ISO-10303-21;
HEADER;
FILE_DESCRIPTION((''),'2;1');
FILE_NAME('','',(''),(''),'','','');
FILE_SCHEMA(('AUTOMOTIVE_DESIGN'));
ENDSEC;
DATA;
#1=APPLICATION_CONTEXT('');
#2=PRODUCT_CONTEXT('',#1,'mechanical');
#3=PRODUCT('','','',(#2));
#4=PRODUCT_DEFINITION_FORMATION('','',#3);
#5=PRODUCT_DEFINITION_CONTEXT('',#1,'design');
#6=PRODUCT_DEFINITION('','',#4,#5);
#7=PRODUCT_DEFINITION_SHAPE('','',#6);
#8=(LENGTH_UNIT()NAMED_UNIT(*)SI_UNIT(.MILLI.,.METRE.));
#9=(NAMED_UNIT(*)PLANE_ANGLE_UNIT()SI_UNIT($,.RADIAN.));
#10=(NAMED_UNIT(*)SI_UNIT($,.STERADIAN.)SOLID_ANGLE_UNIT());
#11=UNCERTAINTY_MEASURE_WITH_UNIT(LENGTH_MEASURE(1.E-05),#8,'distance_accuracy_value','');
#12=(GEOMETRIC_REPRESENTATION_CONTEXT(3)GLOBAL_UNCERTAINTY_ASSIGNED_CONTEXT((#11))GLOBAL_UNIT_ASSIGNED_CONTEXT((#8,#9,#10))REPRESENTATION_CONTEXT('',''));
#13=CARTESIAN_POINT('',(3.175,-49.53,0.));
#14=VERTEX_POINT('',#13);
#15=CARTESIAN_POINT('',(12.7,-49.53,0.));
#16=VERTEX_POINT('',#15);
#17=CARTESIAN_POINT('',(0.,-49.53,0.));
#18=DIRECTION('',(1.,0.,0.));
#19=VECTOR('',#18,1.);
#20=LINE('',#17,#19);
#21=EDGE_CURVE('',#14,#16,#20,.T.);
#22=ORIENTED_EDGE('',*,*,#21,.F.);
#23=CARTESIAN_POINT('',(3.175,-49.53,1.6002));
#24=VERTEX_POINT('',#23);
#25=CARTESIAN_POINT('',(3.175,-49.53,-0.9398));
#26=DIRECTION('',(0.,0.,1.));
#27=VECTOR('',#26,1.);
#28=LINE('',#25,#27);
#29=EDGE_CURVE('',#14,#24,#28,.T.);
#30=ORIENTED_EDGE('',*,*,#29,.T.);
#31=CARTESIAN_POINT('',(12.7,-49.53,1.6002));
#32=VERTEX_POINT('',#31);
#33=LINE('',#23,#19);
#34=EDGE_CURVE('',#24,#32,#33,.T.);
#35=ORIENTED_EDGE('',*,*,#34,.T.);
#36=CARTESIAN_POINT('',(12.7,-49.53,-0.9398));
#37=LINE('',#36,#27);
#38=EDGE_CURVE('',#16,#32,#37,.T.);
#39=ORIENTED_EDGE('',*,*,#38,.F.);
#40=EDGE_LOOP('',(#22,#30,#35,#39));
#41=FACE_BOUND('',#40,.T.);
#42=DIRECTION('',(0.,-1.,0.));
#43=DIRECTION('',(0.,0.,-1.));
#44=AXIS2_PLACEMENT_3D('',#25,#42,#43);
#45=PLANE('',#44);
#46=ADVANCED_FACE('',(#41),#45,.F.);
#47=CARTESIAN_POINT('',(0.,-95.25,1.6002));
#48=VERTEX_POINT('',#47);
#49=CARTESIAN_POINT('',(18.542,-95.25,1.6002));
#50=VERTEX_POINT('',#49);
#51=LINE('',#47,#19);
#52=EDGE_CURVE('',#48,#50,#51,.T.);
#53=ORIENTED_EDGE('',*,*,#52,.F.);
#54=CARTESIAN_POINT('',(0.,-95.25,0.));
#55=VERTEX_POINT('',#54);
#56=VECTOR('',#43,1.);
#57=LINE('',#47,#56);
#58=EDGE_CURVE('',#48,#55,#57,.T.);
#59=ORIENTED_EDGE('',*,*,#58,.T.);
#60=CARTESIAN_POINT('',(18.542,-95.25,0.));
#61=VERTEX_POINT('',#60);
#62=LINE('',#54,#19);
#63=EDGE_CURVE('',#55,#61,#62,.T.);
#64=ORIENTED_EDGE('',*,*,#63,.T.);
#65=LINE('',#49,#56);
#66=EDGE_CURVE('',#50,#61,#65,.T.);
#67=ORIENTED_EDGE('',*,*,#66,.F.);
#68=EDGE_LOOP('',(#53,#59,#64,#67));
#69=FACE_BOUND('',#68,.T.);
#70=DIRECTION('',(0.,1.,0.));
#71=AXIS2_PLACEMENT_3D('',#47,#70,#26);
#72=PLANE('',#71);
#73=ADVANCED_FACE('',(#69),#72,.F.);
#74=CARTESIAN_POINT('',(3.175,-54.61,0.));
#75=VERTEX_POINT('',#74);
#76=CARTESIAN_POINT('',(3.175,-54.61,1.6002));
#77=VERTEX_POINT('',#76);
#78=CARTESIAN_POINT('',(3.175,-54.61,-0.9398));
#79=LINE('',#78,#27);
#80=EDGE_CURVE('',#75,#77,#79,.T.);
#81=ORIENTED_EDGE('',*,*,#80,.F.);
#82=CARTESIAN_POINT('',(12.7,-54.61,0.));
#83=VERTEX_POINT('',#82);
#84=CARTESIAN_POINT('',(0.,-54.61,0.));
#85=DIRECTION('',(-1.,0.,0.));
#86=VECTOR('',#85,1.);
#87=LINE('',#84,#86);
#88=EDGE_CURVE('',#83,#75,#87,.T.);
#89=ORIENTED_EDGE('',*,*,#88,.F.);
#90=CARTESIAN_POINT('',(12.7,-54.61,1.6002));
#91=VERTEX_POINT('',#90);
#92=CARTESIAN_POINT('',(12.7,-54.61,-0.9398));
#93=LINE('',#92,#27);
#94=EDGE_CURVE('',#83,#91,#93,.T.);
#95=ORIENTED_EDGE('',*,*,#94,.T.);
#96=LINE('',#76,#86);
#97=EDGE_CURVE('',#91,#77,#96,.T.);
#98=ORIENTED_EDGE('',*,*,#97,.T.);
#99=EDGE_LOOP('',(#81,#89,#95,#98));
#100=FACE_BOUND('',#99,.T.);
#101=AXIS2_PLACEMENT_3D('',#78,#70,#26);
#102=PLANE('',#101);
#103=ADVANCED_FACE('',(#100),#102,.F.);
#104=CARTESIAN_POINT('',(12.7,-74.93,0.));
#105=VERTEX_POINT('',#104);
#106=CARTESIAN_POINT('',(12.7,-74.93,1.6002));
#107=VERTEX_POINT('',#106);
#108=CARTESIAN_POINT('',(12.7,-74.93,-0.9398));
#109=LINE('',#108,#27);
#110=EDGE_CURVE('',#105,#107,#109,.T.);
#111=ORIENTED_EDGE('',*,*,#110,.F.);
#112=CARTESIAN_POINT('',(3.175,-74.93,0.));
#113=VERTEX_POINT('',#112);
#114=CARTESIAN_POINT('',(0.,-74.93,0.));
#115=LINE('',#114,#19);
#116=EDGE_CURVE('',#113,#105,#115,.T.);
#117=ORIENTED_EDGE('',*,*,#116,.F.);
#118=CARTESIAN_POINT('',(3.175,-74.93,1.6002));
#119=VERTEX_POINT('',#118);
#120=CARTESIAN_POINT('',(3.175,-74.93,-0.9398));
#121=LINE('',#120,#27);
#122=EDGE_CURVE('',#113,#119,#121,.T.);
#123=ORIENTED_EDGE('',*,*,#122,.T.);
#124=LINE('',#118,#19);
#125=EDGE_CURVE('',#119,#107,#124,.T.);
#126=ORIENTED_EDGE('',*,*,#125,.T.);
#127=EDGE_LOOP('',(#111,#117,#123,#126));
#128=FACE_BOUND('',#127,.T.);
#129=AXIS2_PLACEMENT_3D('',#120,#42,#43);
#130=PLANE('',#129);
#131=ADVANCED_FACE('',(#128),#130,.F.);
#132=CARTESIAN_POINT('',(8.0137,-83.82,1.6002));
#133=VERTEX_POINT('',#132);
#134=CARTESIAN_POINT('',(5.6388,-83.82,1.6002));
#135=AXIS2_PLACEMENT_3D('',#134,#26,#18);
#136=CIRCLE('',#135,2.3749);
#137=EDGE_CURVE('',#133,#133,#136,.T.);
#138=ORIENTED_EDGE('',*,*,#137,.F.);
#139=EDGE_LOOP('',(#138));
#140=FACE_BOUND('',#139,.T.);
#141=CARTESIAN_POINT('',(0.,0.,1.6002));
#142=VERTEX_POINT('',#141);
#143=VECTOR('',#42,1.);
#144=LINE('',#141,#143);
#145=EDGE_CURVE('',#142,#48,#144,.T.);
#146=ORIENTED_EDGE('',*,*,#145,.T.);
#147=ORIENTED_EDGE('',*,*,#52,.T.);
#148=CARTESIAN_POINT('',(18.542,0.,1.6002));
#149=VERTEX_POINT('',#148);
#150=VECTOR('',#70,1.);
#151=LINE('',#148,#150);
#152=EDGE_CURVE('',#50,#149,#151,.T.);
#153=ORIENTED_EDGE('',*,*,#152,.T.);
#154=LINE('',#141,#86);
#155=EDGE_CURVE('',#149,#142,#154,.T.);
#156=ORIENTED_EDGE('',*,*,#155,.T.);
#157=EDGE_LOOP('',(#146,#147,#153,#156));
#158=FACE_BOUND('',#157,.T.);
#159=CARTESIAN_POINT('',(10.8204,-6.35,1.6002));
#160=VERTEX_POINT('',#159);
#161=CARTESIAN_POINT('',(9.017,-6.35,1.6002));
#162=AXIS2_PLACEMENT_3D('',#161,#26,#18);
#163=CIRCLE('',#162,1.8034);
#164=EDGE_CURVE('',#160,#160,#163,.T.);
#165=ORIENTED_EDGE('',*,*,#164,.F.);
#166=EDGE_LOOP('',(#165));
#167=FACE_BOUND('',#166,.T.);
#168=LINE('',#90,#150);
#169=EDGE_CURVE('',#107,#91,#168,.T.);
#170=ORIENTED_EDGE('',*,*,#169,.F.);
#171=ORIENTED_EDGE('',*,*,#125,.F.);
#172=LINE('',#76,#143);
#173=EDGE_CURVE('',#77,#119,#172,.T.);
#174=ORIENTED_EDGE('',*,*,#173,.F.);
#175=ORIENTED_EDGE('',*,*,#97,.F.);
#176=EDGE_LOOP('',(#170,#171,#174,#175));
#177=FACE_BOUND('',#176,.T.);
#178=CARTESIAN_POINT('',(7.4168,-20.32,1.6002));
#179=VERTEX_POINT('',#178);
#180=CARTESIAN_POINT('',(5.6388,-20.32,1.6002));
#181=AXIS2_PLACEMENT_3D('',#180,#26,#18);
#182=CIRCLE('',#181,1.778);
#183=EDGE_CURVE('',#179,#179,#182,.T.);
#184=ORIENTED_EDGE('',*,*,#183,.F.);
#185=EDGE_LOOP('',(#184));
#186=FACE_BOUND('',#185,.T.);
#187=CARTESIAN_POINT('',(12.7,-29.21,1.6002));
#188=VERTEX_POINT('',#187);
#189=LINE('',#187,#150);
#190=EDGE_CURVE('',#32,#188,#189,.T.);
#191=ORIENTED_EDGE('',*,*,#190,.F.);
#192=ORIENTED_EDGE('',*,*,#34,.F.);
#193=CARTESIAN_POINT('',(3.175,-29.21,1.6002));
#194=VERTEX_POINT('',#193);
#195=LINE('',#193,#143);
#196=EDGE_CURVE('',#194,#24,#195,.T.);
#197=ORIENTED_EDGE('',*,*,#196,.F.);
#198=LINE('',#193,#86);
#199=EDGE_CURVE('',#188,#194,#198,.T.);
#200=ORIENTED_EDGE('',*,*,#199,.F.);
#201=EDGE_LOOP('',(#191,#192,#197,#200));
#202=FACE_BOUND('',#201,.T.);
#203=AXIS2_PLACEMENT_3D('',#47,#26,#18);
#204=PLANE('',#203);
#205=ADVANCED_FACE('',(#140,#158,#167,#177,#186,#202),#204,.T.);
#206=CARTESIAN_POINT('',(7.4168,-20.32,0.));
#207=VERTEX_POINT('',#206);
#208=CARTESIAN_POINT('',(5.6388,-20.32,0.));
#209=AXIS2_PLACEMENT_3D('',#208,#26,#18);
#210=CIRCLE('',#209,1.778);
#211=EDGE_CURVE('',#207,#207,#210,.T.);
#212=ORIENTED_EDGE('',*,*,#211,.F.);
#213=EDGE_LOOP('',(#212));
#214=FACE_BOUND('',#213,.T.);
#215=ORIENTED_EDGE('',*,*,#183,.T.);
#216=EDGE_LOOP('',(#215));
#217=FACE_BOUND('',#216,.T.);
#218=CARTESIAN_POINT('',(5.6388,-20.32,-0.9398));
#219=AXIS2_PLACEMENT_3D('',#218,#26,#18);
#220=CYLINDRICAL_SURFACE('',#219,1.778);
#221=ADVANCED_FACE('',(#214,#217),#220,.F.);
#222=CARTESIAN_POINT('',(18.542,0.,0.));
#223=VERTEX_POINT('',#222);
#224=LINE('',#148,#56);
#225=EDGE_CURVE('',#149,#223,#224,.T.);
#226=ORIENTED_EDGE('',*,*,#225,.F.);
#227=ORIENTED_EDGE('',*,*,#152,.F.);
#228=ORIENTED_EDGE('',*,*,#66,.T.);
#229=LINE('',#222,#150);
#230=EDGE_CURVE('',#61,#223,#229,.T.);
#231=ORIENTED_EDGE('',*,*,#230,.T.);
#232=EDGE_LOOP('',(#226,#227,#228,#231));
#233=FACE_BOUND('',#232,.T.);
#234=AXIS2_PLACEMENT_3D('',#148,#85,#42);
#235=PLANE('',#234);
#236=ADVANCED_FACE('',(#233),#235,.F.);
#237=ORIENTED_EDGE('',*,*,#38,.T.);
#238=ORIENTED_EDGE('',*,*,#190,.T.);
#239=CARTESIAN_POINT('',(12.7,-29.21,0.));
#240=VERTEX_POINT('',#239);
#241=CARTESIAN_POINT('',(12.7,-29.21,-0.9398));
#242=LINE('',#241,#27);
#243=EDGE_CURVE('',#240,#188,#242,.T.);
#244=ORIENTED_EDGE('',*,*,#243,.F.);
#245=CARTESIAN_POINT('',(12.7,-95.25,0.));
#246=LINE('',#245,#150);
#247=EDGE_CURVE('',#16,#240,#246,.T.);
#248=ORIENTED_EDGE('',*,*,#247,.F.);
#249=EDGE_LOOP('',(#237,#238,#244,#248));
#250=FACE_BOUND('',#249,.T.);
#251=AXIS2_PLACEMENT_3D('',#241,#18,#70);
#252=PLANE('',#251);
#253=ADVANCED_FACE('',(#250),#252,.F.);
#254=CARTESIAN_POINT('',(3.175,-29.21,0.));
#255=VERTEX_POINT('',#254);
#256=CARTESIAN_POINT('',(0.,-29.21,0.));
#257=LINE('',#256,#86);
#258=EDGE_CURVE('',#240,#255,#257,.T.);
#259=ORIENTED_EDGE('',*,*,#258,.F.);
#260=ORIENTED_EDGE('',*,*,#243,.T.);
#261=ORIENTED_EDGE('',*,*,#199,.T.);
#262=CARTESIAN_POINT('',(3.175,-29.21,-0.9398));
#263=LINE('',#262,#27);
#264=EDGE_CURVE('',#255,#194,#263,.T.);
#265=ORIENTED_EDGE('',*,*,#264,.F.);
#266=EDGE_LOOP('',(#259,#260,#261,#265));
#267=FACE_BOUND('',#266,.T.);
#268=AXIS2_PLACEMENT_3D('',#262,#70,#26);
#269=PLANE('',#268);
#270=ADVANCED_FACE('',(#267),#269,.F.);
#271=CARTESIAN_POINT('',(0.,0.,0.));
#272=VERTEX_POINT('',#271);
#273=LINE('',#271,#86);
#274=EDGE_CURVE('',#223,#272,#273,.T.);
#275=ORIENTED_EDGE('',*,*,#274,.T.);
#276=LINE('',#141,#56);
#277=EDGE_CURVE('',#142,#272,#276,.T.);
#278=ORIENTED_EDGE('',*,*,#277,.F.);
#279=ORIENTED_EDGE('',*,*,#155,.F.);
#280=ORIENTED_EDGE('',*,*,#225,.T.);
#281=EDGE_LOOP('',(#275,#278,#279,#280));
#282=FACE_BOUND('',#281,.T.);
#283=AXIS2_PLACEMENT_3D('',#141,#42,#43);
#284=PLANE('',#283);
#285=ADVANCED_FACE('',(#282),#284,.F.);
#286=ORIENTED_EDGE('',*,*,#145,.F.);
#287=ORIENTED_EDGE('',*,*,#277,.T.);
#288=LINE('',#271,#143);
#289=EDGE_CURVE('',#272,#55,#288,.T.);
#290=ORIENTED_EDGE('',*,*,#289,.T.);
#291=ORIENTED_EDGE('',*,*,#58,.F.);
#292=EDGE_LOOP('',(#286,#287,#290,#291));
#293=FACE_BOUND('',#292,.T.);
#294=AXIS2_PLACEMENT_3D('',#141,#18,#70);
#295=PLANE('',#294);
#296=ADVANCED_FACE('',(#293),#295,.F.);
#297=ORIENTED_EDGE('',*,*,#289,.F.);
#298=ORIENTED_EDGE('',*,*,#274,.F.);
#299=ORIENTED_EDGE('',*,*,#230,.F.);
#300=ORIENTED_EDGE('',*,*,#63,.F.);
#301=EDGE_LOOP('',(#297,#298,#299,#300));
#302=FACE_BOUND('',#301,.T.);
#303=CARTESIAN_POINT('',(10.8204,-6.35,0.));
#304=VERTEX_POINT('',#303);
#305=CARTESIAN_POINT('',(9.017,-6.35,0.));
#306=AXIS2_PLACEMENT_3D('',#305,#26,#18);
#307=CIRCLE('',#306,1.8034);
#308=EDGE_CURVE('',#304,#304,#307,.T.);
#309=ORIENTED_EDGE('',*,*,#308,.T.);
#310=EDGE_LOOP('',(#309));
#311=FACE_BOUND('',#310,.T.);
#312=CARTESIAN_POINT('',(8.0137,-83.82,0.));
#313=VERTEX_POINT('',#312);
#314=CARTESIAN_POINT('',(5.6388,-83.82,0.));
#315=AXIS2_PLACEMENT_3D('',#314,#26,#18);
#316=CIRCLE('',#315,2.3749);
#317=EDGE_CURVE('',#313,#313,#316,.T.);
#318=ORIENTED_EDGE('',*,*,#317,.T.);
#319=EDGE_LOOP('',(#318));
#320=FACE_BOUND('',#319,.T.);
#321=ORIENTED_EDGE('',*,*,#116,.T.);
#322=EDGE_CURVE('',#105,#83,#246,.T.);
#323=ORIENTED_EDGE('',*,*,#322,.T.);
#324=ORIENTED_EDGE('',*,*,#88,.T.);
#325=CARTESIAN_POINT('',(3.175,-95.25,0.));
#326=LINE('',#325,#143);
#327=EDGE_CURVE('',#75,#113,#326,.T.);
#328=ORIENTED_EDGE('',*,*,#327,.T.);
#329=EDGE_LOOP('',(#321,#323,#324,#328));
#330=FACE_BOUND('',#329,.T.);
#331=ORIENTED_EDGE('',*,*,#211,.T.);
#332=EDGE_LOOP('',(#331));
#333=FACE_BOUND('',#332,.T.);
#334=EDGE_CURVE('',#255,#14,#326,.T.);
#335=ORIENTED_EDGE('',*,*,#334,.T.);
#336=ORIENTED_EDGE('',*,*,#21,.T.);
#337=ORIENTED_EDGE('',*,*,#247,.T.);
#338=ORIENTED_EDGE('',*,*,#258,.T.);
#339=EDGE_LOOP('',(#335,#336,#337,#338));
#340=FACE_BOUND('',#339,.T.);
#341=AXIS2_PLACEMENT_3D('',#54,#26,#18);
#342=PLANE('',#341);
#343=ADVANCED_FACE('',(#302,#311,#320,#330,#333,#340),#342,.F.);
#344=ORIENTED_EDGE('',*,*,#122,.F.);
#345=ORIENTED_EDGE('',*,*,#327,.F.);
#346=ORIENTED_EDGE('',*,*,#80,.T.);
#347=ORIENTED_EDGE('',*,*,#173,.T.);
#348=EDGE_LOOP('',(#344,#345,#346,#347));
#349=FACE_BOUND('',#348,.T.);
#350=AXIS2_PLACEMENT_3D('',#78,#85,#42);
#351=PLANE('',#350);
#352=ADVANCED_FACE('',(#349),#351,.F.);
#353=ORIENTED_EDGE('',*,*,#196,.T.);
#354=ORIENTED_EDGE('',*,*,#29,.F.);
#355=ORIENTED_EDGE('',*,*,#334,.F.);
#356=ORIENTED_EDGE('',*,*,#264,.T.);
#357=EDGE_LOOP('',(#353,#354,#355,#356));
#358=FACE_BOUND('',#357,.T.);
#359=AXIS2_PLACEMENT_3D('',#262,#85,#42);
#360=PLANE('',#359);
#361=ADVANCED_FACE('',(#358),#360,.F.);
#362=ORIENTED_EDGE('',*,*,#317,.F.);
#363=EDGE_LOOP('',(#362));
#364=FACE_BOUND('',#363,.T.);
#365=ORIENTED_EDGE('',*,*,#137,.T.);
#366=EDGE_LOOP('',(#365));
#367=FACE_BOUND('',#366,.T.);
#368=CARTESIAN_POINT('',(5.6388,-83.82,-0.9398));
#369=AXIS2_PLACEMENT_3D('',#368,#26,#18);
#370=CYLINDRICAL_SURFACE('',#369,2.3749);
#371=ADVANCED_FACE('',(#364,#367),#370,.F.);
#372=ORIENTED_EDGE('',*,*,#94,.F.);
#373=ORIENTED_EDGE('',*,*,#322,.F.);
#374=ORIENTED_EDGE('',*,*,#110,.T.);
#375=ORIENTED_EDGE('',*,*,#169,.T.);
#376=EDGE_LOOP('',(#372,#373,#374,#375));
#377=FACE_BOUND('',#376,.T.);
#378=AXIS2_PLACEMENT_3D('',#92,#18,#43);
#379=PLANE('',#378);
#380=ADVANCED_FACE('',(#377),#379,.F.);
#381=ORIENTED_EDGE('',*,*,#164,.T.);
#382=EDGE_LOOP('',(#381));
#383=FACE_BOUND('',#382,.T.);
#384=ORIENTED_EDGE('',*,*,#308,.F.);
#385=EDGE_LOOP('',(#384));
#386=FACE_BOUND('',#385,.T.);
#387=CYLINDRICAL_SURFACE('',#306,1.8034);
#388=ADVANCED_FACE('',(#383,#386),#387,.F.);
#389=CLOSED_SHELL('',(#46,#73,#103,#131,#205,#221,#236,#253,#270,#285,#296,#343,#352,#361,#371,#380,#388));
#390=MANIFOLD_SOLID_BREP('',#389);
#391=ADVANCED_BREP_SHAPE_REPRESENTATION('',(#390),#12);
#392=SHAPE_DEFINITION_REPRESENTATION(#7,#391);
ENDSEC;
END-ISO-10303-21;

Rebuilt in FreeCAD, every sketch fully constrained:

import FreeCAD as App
import Part
import Sketcher

V = App.Vector
Q = App.Units.Quantity

doc = App.newDocument("Part")
params = doc.addObject("Spreadsheet::Sheet", "Params")
for row, (alias, value) in enumerate([
    ("sketch1_width", "0.73 in"),
    ("sketch1_height", "3.75 in"),
    ("pad1_length", "0.063 in"),
    ("sketch2_diameter", "0.142 in"),
    ("pocket1_length", "0.063 in"),
    ("sketch3_diameter", "0.14 in"),
    ("sketch3_diameter2", "0.187 in"),
    ("pocket2_length", "0.1 in"),
    ("sketch4_height", "0.8 in"),
    ("sketch4_width", "0.375 in"),
    ("pocket3_length", "0.1 in"),
], start=1):
    params.set(f"A{row}", alias)
    params.set(f"B{row}", "=" + value)
    params.setAlias(f"B{row}", alias)

body = doc.addObject("PartDesign::Body", "Body")

sketch1 = doc.addObject("Sketcher::SketchObject", "Sketch")
body.addObject(sketch1)
sketch1.AttachmentSupport = (doc.XY_Plane, [""])
sketch1.MapMode = "FlatFace"
sketch1.addGeometry([
    Part.LineSegment(V(0, 0, 0), V(0, -95, 0)),
    Part.LineSegment(V(0, -95, 0), V(19, -95, 0)),
    Part.LineSegment(V(19, -95, 0), V(19, 0, 0)),
    Part.LineSegment(V(19, 0, 0), V(0, 0, 0)),
], False)
sketch1.addConstraint([
    Sketcher.Constraint("Coincident", 0, 2, 1, 1),
    Sketcher.Constraint("Coincident", 1, 2, 2, 1),
    Sketcher.Constraint("Coincident", 2, 2, 3, 1),
    Sketcher.Constraint("Coincident", 3, 2, 0, 1),
    Sketcher.Constraint("Vertical", 0),
    Sketcher.Constraint("Horizontal", 1),
    Sketcher.Constraint("Vertical", 2),
    Sketcher.Constraint("Horizontal", 3),
    Sketcher.Constraint("Coincident", 3, 2, -1, 1),
    Sketcher.Constraint("DistanceX", 1, 1, 1, 2, Q("0.73 in")),
    Sketcher.Constraint("DistanceY", 0, 2, 0, 1, Q("3.75 in")),
])
sketch1.setExpression("Constraints[9]", "Params.sketch1_width")
sketch1.setExpression("Constraints[10]", "Params.sketch1_height")
pad1 = doc.addObject("PartDesign::Pad", "Pad")
body.addObject(pad1)
pad1.Profile = sketch1
pad1.setExpression("Length", "Params.pad1_length")

sketch2 = doc.addObject("Sketcher::SketchObject", "Sketch001")
body.addObject(sketch2)
sketch2.AttachmentSupport = (doc.XY_Plane, [""])
sketch2.MapMode = "FlatFace"
sketch2.AttachmentOffset = App.Placement(V(0, 0, 0.063 * 25.4), App.Rotation())
sketch2.addGeometry(Part.Circle(V(9, -6.3, 0), V(0, 0, 1), 1.8), False)
sketch2.addConstraint([
    Sketcher.Constraint("Diameter", 0, Q("0.142 in")),
    Sketcher.Constraint("DistanceY", 0, 3, -1, 1, Q("0.25 in")),
    Sketcher.Constraint("DistanceX", -1, 1, 0, 3, Q("0.355 in")),
])
sketch2.setExpression("Constraints[0]", "Params.sketch2_diameter")
pocket1 = doc.addObject("PartDesign::Pocket", "Pocket")
body.addObject(pocket1)
pocket1.Profile = sketch2
pocket1.setExpression("Length", "Params.pocket1_length")

sketch3 = doc.addObject("Sketcher::SketchObject", "Sketch002")
body.addObject(sketch3)
sketch3.AttachmentSupport = (doc.XY_Plane, [""])
sketch3.MapMode = "FlatFace"
sketch3.AttachmentOffset = App.Placement(V(0, 0, 0.063 * 25.4), App.Rotation())
sketch3.addGeometry([
    Part.Circle(V(5.6, -20.3, 0), V(0, 0, 1), 1.8),
    Part.Circle(V(5.6, -83.8, 0), V(0, 0, 1), 2.4),
], False)
sketch3.addConstraint([
    Sketcher.Constraint("Vertical", 0, 3, 1, 3),
    Sketcher.Constraint("Diameter", 0, Q("0.14 in")),
    Sketcher.Constraint("Diameter", 1, Q("0.187 in")),
    Sketcher.Constraint("DistanceY", 0, 3, -1, 1, Q("0.8 in")),
    Sketcher.Constraint("DistanceY", 1, 3, -1, 1, Q("3.3 in")),
    Sketcher.Constraint("DistanceX", -1, 1, 0, 3, Q("0.222 in")),
])
sketch3.setExpression("Constraints[1]", "Params.sketch3_diameter")
sketch3.setExpression("Constraints[2]", "Params.sketch3_diameter2")
pocket2 = doc.addObject("PartDesign::Pocket", "Pocket001")
body.addObject(pocket2)
pocket2.Profile = sketch3
pocket2.setExpression("Length", "Params.pocket2_length")

sketch4 = doc.addObject("Sketcher::SketchObject", "Sketch003")
body.addObject(sketch4)
sketch4.AttachmentSupport = (doc.XY_Plane, [""])
sketch4.MapMode = "FlatFace"
sketch4.AttachmentOffset = App.Placement(V(0, 0, 0.063 * 25.4), App.Rotation())
sketch4.addGeometry([
    Part.LineSegment(V(3, -29, 0), V(3, -50, 0)),
    Part.LineSegment(V(3, -50, 0), V(13, -50, 0)),
    Part.LineSegment(V(13, -50, 0), V(13, -29, 0)),
    Part.LineSegment(V(13, -29, 0), V(3, -29, 0)),
    Part.LineSegment(V(3, -55, 0), V(3, -75, 0)),
    Part.LineSegment(V(3, -75, 0), V(13, -75, 0)),
    Part.LineSegment(V(13, -75, 0), V(13, -55, 0)),
    Part.LineSegment(V(13, -55, 0), V(3, -55, 0)),
], False)
sketch4.addConstraint([
    Sketcher.Constraint("Coincident", 0, 2, 1, 1),
    Sketcher.Constraint("Coincident", 1, 2, 2, 1),
    Sketcher.Constraint("Coincident", 2, 2, 3, 1),
    Sketcher.Constraint("Coincident", 3, 2, 0, 1),
    Sketcher.Constraint("Coincident", 4, 2, 5, 1),
    Sketcher.Constraint("Coincident", 5, 2, 6, 1),
    Sketcher.Constraint("Coincident", 6, 2, 7, 1),
    Sketcher.Constraint("Coincident", 7, 2, 4, 1),
    Sketcher.Constraint("Vertical", 0),
    Sketcher.Constraint("Horizontal", 1),
    Sketcher.Constraint("Vertical", 2),
    Sketcher.Constraint("Horizontal", 3),
    Sketcher.Constraint("Vertical", 4),
    Sketcher.Constraint("Horizontal", 5),
    Sketcher.Constraint("Vertical", 6),
    Sketcher.Constraint("Horizontal", 7),
    Sketcher.Constraint("Vertical", 3, 2, 4, 2),
    Sketcher.Constraint("Vertical", 2, 2, 5, 2),
    Sketcher.Constraint("Equal", 2, 4),
    Sketcher.Constraint("DistanceY", 0, 2, 0, 1, Q("0.8 in")),
    Sketcher.Constraint("DistanceY", 4, 2, 0, 2, Q("1 in")),
    Sketcher.Constraint("DistanceX", -1, 1, 1, 2, Q("0.5 in")),
    Sketcher.Constraint("DistanceX", 1, 1, 1, 2, Q("0.375 in")),
    Sketcher.Constraint("DistanceY", 0, 2, -1, 1, Q("1.95 in")),
])
sketch4.setExpression("Constraints[19]", "Params.sketch4_height")
sketch4.setExpression("Constraints[22]", "Params.sketch4_width")
pocket3 = doc.addObject("PartDesign::Pocket", "Pocket002")
body.addObject(pocket3)
pocket3.Profile = sketch4
pocket3.setExpression("Length", "Params.pocket3_length")

doc.recompute()
